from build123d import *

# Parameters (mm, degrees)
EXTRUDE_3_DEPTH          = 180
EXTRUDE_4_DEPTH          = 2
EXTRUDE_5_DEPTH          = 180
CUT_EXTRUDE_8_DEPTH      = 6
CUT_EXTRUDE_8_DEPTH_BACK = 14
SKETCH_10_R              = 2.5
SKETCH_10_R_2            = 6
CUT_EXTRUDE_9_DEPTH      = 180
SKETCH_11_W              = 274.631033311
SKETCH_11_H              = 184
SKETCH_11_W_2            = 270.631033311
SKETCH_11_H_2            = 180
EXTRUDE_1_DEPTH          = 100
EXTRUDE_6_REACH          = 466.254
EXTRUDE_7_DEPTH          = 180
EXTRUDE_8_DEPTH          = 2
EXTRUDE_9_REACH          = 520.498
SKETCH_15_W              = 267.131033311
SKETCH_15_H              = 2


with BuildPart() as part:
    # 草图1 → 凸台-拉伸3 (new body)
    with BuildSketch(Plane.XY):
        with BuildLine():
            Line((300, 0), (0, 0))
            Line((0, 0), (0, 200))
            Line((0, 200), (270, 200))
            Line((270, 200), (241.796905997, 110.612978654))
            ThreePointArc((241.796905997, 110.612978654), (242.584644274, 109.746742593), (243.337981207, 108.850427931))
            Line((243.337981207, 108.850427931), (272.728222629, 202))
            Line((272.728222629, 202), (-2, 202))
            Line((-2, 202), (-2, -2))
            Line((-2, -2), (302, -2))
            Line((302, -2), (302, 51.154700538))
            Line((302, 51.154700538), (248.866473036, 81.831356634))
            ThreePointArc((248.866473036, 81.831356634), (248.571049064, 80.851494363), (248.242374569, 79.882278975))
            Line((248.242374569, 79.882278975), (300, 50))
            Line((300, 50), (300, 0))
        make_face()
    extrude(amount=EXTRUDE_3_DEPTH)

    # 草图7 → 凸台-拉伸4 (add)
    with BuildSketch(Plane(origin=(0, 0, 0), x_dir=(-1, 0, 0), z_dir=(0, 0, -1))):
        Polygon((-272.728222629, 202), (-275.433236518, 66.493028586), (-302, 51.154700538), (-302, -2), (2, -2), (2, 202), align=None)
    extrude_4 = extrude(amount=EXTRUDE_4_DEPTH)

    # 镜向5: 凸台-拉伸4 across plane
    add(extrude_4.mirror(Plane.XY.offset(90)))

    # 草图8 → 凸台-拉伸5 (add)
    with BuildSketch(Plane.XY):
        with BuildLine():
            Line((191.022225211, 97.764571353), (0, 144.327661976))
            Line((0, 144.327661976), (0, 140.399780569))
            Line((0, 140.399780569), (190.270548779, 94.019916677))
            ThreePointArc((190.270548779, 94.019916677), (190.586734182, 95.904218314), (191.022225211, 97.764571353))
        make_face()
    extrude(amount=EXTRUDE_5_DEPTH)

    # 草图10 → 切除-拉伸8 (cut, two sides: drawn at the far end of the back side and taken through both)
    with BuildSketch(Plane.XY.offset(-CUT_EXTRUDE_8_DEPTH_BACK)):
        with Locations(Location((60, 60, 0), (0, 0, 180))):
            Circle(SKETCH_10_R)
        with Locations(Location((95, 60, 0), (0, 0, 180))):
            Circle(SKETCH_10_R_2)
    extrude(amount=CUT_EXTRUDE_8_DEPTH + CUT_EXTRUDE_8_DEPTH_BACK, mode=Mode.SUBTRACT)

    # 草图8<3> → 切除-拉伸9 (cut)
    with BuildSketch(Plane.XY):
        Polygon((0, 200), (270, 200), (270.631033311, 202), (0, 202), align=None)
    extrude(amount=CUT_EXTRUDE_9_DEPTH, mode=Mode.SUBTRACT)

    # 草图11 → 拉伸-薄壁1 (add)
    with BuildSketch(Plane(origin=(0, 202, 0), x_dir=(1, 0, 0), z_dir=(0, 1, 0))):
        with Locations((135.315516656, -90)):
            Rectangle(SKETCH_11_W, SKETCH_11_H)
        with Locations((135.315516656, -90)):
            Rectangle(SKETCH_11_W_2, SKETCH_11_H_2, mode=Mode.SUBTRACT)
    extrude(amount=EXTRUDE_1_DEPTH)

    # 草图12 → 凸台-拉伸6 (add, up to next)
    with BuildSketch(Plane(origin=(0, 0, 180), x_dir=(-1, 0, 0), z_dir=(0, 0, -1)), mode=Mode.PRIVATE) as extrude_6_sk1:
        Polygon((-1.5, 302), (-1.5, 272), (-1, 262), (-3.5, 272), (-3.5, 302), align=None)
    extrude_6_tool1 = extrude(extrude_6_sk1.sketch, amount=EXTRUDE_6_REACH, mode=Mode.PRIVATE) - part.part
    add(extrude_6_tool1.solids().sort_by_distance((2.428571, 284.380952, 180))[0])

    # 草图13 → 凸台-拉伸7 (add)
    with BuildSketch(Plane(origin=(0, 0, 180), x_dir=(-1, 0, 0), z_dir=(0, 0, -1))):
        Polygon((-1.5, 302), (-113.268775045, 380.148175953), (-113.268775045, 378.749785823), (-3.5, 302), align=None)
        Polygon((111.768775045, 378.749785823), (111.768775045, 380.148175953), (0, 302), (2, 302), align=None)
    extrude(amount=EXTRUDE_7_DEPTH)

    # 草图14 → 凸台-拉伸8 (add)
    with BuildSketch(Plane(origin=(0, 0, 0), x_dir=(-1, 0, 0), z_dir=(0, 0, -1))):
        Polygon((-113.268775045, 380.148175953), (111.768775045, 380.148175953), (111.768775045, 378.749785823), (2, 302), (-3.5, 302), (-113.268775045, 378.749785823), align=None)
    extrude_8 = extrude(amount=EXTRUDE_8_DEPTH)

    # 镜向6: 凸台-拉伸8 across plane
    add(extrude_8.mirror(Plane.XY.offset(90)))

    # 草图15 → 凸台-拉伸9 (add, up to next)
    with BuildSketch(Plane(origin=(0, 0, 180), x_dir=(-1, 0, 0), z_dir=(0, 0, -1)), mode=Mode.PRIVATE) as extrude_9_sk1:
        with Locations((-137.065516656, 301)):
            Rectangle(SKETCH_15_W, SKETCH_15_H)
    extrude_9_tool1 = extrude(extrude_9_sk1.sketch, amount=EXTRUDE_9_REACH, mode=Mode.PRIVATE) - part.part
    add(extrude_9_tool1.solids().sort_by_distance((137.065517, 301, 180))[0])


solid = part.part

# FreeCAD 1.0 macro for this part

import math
import FreeCAD as App
import Part
import Sketcher
from FreeCAD import Vector
Q = App.Units.Quantity


def add_polygon(sketch, points):
    """Adds a closed chain of lines whose ends are joined by coincident constraints."""
    first, n = sketch.GeometryCount, len(points)
    for a, b in zip(points, points[1:] + points[:1]):
        sketch.addGeometry(Part.LineSegment(App.Vector(*a, 0), App.Vector(*b, 0)), False)
    for i in range(n):
        sketch.addConstraint(Sketcher.Constraint("Coincident", first + i, 2, first + (i + 1) % n, 1))

doc = App.newDocument("Part")
body = doc.addObject("PartDesign::Body", "Body")

# Sketch on XY plane
sketch1 = body.newObject("Sketcher::SketchObject", "Sketch")
sketch1.AttachmentSupport = (doc.getObject("XY_Plane"), [""])
sketch1.MapMode = "FlatFace"
sketch1.addGeometry(Part.LineSegment(Vector(300, 0, 0), Vector(0, 0, 0)), False)
sketch1.addGeometry(Part.LineSegment(Vector(0, 0, 0), Vector(0, 200, 0)), False)
sketch1.addGeometry(Part.LineSegment(Vector(0, 200, 0), Vector(270, 200, 0)), False)
sketch1.addGeometry(Part.LineSegment(Vector(270, 200, 0), Vector(241.8, 110.6, 0)), False)
sketch1.addGeometry(Part.ArcOfCircle(Part.Circle(Vector(220, 90, 0), Vector(0, 0, 1), 30), math.radians(38.93), math.radians(43.4)), False)
sketch1.addGeometry(Part.LineSegment(Vector(243.3, 108.9, 0), Vector(272.7, 202, 0)), False)
sketch1.addGeometry(Part.LineSegment(Vector(272.7, 202, 0), Vector(-2, 202, 0)), False)
sketch1.addGeometry(Part.LineSegment(Vector(-2, 202, 0), Vector(-2, -2, 0)), False)
sketch1.addGeometry(Part.LineSegment(Vector(-2, -2, 0), Vector(302, -2, 0)), False)
sketch1.addGeometry(Part.LineSegment(Vector(302, -2, 0), Vector(302, 51.2, 0)), False)
sketch1.addGeometry(Part.LineSegment(Vector(302, 51.2, 0), Vector(248.9, 81.8, 0)), False)
sketch1.addGeometry(Part.ArcOfCircle(Part.Circle(Vector(220, 90, 0), Vector(0, 0, 1), 30), math.radians(-19.71), math.radians(-15.8)), False)
sketch1.addGeometry(Part.LineSegment(Vector(248.2, 79.9, 0), Vector(300, 50, 0)), False)
sketch1.addGeometry(Part.LineSegment(Vector(300, 50, 0), Vector(300, 0, 0)), False)
sketch1.addConstraint(Sketcher.Constraint("Coincident", 0, 2, 1, 1))
sketch1.addConstraint(Sketcher.Constraint("Coincident", 1, 2, 2, 1))
sketch1.addConstraint(Sketcher.Constraint("Coincident", 2, 2, 3, 1))
sketch1.addConstraint(Sketcher.Constraint("Coincident", 3, 2, 4, 2))
sketch1.addConstraint(Sketcher.Constraint("Coincident", 4, 1, 5, 1))
sketch1.addConstraint(Sketcher.Constraint("Coincident", 5, 2, 6, 1))
sketch1.addConstraint(Sketcher.Constraint("Coincident", 6, 2, 7, 1))
sketch1.addConstraint(Sketcher.Constraint("Coincident", 7, 2, 8, 1))
sketch1.addConstraint(Sketcher.Constraint("Coincident", 8, 2, 9, 1))
sketch1.addConstraint(Sketcher.Constraint("Coincident", 9, 2, 10, 1))
sketch1.addConstraint(Sketcher.Constraint("Coincident", 10, 2, 11, 2))
sketch1.addConstraint(Sketcher.Constraint("Coincident", 11, 1, 12, 1))
sketch1.addConstraint(Sketcher.Constraint("Coincident", 12, 2, 13, 1))
sketch1.addConstraint(Sketcher.Constraint("Coincident", 13, 2, 0, 1))
sketch1.addConstraint(Sketcher.Constraint("Horizontal", 0))
sketch1.addConstraint(Sketcher.Constraint("Vertical", 1))
sketch1.addConstraint(Sketcher.Constraint("Horizontal", 2))
sketch1.addConstraint(Sketcher.Constraint("Horizontal", 6))
sketch1.addConstraint(Sketcher.Constraint("Vertical", 7))
sketch1.addConstraint(Sketcher.Constraint("Horizontal", 8))
sketch1.addConstraint(Sketcher.Constraint("Vertical", 9))
sketch1.addConstraint(Sketcher.Constraint("Vertical", 13))
sketch1.addConstraint(Sketcher.Constraint("Coincident", 0, 2, -1, 1))
sketch1.addConstraint(Sketcher.Constraint("Coincident", 11, 3, 4, 3))
sketch1.addConstraint(Sketcher.Constraint("Equal", 4, 11))
sketch1.addConstraint(Sketcher.Constraint("Parallel", 3, 5))
sketch1.addConstraint(Sketcher.Constraint("Parallel", 10, 12))
sketch1.addConstraint(Sketcher.Constraint("Radius", 4, Q("30 mm")))
sketch1.addConstraint(Sketcher.Constraint("DistanceX", 0, 2, 0, 1, Q("300 mm")))
sketch1.addConstraint(Sketcher.Constraint("DistanceX", 2, 1, 2, 2, Q("270 mm")))
sketch1.addConstraint(Sketcher.Constraint("DistanceX", 8, 1, 8, 2, Q("304 mm")))
sketch1.addConstraint(Sketcher.Constraint("DistanceY", 1, 1, 1, 2, Q("200 mm")))
sketch1.addConstraint(Sketcher.Constraint("DistanceY", 7, 2, 7, 1, Q("204 mm")))
sketch1.addConstraint(Sketcher.Constraint("DistanceY", 13, 2, 13, 1, Q("50 mm")))
sketch1.addConstraint(Sketcher.Constraint("Angle", 10, Q("150 deg")))
sketch1.addConstraint(Sketcher.Constraint("DistanceX", -1, 1, 4, 3, Q("220 mm")))
sketch1.addConstraint(Sketcher.Constraint("DistanceY", -1, 1, 4, 3, Q("90 mm")))
sketch1.addConstraint(Sketcher.Constraint("DistanceY", -1, 1, 5, 2, Q("202 mm")))
sketch1.addConstraint(Sketcher.Constraint("DistanceX", 6, 2, -1, 1, Q("2 mm")))
sketch1.addConstraint(Sketcher.Constraint("DistanceY", 9, 1, 9, 2, Q("53.154701 mm")))
sketch1.addConstraint(Sketcher.Constraint("DistanceY", 11, 1, 3, 2, Q("30.7307 mm")))
sketch1.addConstraint(Sketcher.Constraint("DistanceX", 6, 2, 6, 1, Q("274.728223 mm")))
pad1 = body.newObject("PartDesign::Pad", "Pad")
pad1.Profile = sketch1
pad1.Length = 180

# Sketch on XY plane
sketch2 = body.newObject("Sketcher::SketchObject", "Sketch001")
sketch2.AttachmentSupport = (doc.getObject("XY_Plane"), [""])
sketch2.MapMode = "FlatFace"
add_polygon(sketch2, [(273, 202), (275, 66), (302, 51), (302, -2), (-2, -2), (-2, 202)])  # lines 0-5
sketch2.addConstraint(Sketcher.Constraint("Vertical", 2))
sketch2.addConstraint(Sketcher.Constraint("Horizontal", 3))
sketch2.addConstraint(Sketcher.Constraint("Vertical", 4))
sketch2.addConstraint(Sketcher.Constraint("Horizontal", 5))
sketch2.addConstraint(Sketcher.Constraint("DistanceX", 3, 2, 3, 1, Q("304 mm")))
sketch2.addConstraint(Sketcher.Constraint("DistanceY", 4, 1, 4, 2, Q("204 mm")))
sketch2.addConstraint(Sketcher.Constraint("Angle", 1, Q("-30 deg")))
sketch2.addConstraint(Sketcher.Constraint("DistanceX", -1, 1, 1, 2, Q("302 mm")))
sketch2.addConstraint(Sketcher.Constraint("DistanceY", 2, 2, -1, 1, Q("2 mm")))
sketch2.addConstraint(Sketcher.Constraint("DistanceY", 2, 2, 2, 1, Q("53.154701 mm")))
sketch2.addConstraint(Sketcher.Constraint("DistanceX", 5, 1, 5, 2, Q("274.728223 mm")))
sketch2.addConstraint(Sketcher.Constraint("DistanceY", -1, 1, 0, 2, Q("66.493029 mm")))
pad2 = body.newObject("PartDesign::Pad", "Pad001")
pad2.Profile = sketch2
pad2.Length = 2
pad2.Reversed = True
doc.recompute()

datumplane = body.newObject("PartDesign::Plane", "DatumPlane")
datumplane.AttachmentSupport = (doc.getObject("XY_Plane"), [""])
datumplane.MapMode = "FlatFace"
datumplane.AttachmentOffset = App.Placement(Vector(0, 0, 90), App.Rotation())
mirrored = body.newObject("PartDesign::Mirrored", "Mirrored")
mirrored.Originals = [pad2]
mirrored.MirrorPlane = (datumplane, [""])
body.Tip = mirrored

# Sketch on XY plane
sketch3 = body.newObject("Sketcher::SketchObject", "Sketch002")
sketch3.AttachmentSupport = (doc.getObject("XY_Plane"), [""])
sketch3.MapMode = "FlatFace"
sketch3.addGeometry(Part.LineSegment(Vector(191, 97.8, 0), Vector(0, 144.3, 0)), False)
sketch3.addGeometry(Part.LineSegment(Vector(0, 144.3, 0), Vector(0, 140.4, 0)), False)
sketch3.addGeometry(Part.LineSegment(Vector(0, 140.4, 0), Vector(190.3, 94, 0)), False)
sketch3.addGeometry(Part.ArcOfCircle(Part.Circle(Vector(220, 90, 0), Vector(0, 0, 1), 30), math.radians(165), math.radians(172.3)), False)
sketch3.addConstraint(Sketcher.Constraint("Coincident", 0, 2, 1, 1))
sketch3.addConstraint(Sketcher.Constraint("Coincident", 1, 2, 2, 1))
sketch3.addConstraint(Sketcher.Constraint("Coincident", 2, 2, 3, 2))
sketch3.addConstraint(Sketcher.Constraint("Coincident", 3, 1, 0, 1))
sketch3.addConstraint(Sketcher.Constraint("Vertical", 1))
sketch3.addConstraint(Sketcher.Constraint("PointOnObject", 0, 2, -2))
sketch3.addConstraint(Sketcher.Constraint("Parallel", 0, 2))
sketch3.addConstraint(Sketcher.Constraint("Radius", 3, Q("30 mm")))
sketch3.addConstraint(Sketcher.Constraint("DistanceX", -1, 1, 3, 3, Q("220 mm")))
sketch3.addConstraint(Sketcher.Constraint("DistanceY", -1, 1, 3, 3, Q("90 mm")))
sketch3.addConstraint(Sketcher.Constraint("DistanceY", 1, 2, 1, 1, Q("3.927881 mm")))
sketch3.addConstraint(Sketcher.Constraint("Distance", 0, Q("196.615391 mm")))
sketch3.addConstraint(Sketcher.Constraint("DistanceY", -1, 1, 0, 2, Q("144.327662 mm")))
pad3 = body.newObject("PartDesign::Pad", "Pad002")
pad3.Profile = sketch3
pad3.Length = 180

# Sketch on XY plane
sketch4 = body.newObject("Sketcher::SketchObject", "Sketch003")
sketch4.AttachmentSupport = (doc.getObject("XY_Plane"), [""])
sketch4.MapMode = "FlatFace"
sketch4.addGeometry(Part.Circle(Vector(60, 60, 0), Vector(0, 0, 1), 2.5), False)
sketch4.addGeometry(Part.Circle(Vector(95, 60, 0), Vector(0, 0, 1), 6), False)
sketch4.addConstraint(Sketcher.Constraint("Horizontal", 0, 3, 1, 3))
sketch4.addConstraint(Sketcher.Constraint("Diameter", 0, Q("5 mm")))
sketch4.addConstraint(Sketcher.Constraint("Diameter", 1, Q("12 mm")))
sketch4.addConstraint(Sketcher.Constraint("DistanceX", -1, 1, 0, 3, Q("60 mm")))
sketch4.addConstraint(Sketcher.Constraint("DistanceY", -1, 1, 0, 3, Q("60 mm")))
sketch4.addConstraint(Sketcher.Constraint("DistanceX", -1, 1, 1, 3, Q("95 mm")))
pocket1 = body.newObject("PartDesign::Pocket", "Pocket")
pocket1.Profile = sketch4
pocket1.Type = "TwoLengths"
pocket1.Length = 6
pocket1.Length2 = 14
pocket1.Reversed = True

# Sketch on XY plane
sketch5 = body.newObject("Sketcher::SketchObject", "Sketch004")
sketch5.AttachmentSupport = (doc.getObject("XY_Plane"), [""])
sketch5.MapMode = "FlatFace"
add_polygon(sketch5, [(0, 200), (270, 200), (270.6, 202), (0, 202)])  # lines 0-3
sketch5.addConstraint(Sketcher.Constraint("Horizontal", 0))
sketch5.addConstraint(Sketcher.Constraint("Horizontal", 2))
sketch5.addConstraint(Sketcher.Constraint("Vertical", 3))
sketch5.addConstraint(Sketcher.Constraint("PointOnObject", 2, 2, -2))
sketch5.addConstraint(Sketcher.Constraint("DistanceX", 0, 1, 0, 2, Q("270 mm")))
sketch5.addConstraint(Sketcher.Constraint("DistanceY", 3, 2, 3, 1, Q("2 mm")))
sketch5.addConstraint(Sketcher.Constraint("DistanceY", -1, 1, 0, 2, Q("200 mm")))
sketch5.addConstraint(Sketcher.Constraint("Distance", 1, Q("2.097189 mm")))
pocket2 = body.newObject("PartDesign::Pocket", "Pocket001")
pocket2.Profile = sketch5
pocket2.Length = 180
pocket2.Reversed = True

# Sketch on XZ plane
sketch6 = body.newObject("Sketcher::SketchObject", "Sketch005")
sketch6.AttachmentSupport = (doc.getObject("XZ_Plane"), [""])
sketch6.MapMode = "FlatFace"
sketch6.AttachmentOffset = App.Placement(Vector(0, 0, -202), App.Rotation())
add_polygon(sketch6, [(-2, -2), (-2, 182), (273, 182), (273, -2)])  # lines 0-3
add_polygon(sketch6, [(271, 180), (0, 180), (0, 0), (271, 0)])  # lines 4-7
sketch6.addConstraint(Sketcher.Constraint("Vertical", 0))
sketch6.addConstraint(Sketcher.Constraint("Horizontal", 1))
sketch6.addConstraint(Sketcher.Constraint("Vertical", 2))
sketch6.addConstraint(Sketcher.Constraint("Horizontal", 3))
sketch6.addConstraint(Sketcher.Constraint("Horizontal", 4))
sketch6.addConstraint(Sketcher.Constraint("Vertical", 5))
sketch6.addConstraint(Sketcher.Constraint("Horizontal", 6))
sketch6.addConstraint(Sketcher.Constraint("Vertical", 7))
sketch6.addConstraint(Sketcher.Constraint("Coincident", 5, 2, -1, 1))
sketch6.addConstraint(Sketcher.Constraint("DistanceY", 0, 1, 0, 2, Q("184 mm")))
sketch6.addConstraint(Sketcher.Constraint("DistanceY", 5, 2, 5, 1, Q("180 mm")))
sketch6.addConstraint(Sketcher.Constraint("DistanceX", 0, 2, -1, 1, Q("2 mm")))
sketch6.addConstraint(Sketcher.Constraint("DistanceY", -1, 1, 0, 2, Q("182 mm")))
sketch6.addConstraint(Sketcher.Constraint("DistanceX", 6, 2, 2, 2, Q("2 mm")))
sketch6.addConstraint(Sketcher.Constraint("DistanceX", 1, 1, 1, 2, Q("274.631033 mm")))
pad4 = body.newObject("PartDesign::Pad", "Pad003")
pad4.Profile = sketch6
pad4.Length = 100
pad4.Reversed = True

# Sketch on XY plane
sketch7 = body.newObject("Sketcher::SketchObject", "Sketch006")
sketch7.AttachmentSupport = (doc.getObject("XY_Plane"), [""])
sketch7.MapMode = "FlatFace"
sketch7.AttachmentOffset = App.Placement(Vector(0, 0, 180), App.Rotation())
add_polygon(sketch7, [(1.5, 272), (1.5, 302), (3.5, 302), (3.5, 272), (1, 262)])  # lines 0-4
sketch7.addConstraint(Sketcher.Constraint("Vertical", 0))
sketch7.addConstraint(Sketcher.Constraint("Horizontal", 1))
sketch7.addConstraint(Sketcher.Constraint("Vertical", 2))
sketch7.addConstraint(Sketcher.Constraint("Horizontal", 2, 2, 4, 2))
sketch7.addConstraint(Sketcher.Constraint("DistanceX", 1, 1, 1, 2, Q("2 mm")))
sketch7.addConstraint(Sketcher.Constraint("DistanceY", 0, 1, 0, 2, Q("30 mm")))
sketch7.addConstraint(Sketcher.Constraint("DistanceY", -1, 1, 0, 2, Q("302 mm")))
sketch7.addConstraint(Sketcher.Constraint("DistanceX", -1, 1, 3, 2, Q("1 mm")))
sketch7.addConstraint(Sketcher.Constraint("DistanceY", -1, 1, 3, 2, Q("262 mm")))
sketch7.addConstraint(Sketcher.Constraint("DistanceX", -1, 1, 0, 2, Q("1.5 mm")))
pad5 = body.newObject("PartDesign::Pad", "Pad004")
pad5.Profile = sketch7
pad5.Type = "UpToFirst"
pad5.Reversed = True

# Sketch on XY plane
sketch8 = body.newObject("Sketcher::SketchObject", "Sketch007")
sketch8.AttachmentSupport = (doc.getObject("XY_Plane"), [""])
sketch8.MapMode = "FlatFace"
sketch8.AttachmentOffset = App.Placement(Vector(0, 0, 180), App.Rotation())
add_polygon(sketch8, [(1.5, 302), (113.3, 380.1), (113.3, 378.7), (3.5, 302)])  # lines 0-3
add_polygon(sketch8, [(-111.8, 378.7), (-111.8, 380.1), (0, 302), (-2, 302)])  # lines 4-7
sketch8.addConstraint(Sketcher.Constraint("Vertical", 1))
sketch8.addConstraint(Sketcher.Constraint("Horizontal", 3))
sketch8.addConstraint(Sketcher.Constraint("Vertical", 4))
sketch8.addConstraint(Sketcher.Constraint("Horizontal", 6))
sketch8.addConstraint(Sketcher.Constraint("PointOnObject", 5, 2, -2))
sketch8.addConstraint(Sketcher.Constraint("Parallel", 0, 2))
sketch8.addConstraint(Sketcher.Constraint("Parallel", 5, 7))
sketch8.addConstraint(Sketcher.Constraint("Horizontal", 0, 2, 4, 2))
sketch8.addConstraint(Sketcher.Constraint("Horizontal", 3, 2, 5, 2))
sketch8.addConstraint(Sketcher.Constraint("Horizontal", 1, 2, 7, 2))
sketch8.addConstraint(Sketcher.Constraint("Equal", 3, 6))
sketch8.addConstraint(Sketcher.Constraint("DistanceX", 3, 2, 3, 1, Q("2 mm")))
sketch8.addConstraint(Sketcher.Constraint("DistanceY", -1, 1, 2, 2, Q("302 mm")))
sketch8.addConstraint(Sketcher.Constraint("DistanceX", -1, 1, 2, 2, Q("3.5 mm")))
sketch8.addConstraint(Sketcher.Constraint("DistanceY", 1, 2, 1, 1, Q("1.39839 mm")))
sketch8.addConstraint(Sketcher.Constraint("DistanceX", 4, 2, 0, 2, Q("225.03755 mm")))
pad6 = body.newObject("PartDesign::Pad", "Pad005")
pad6.Profile = sketch8
pad6.Length = 180
pad6.Reversed = True

# Sketch on XY plane
sketch9 = body.newObject("Sketcher::SketchObject", "Sketch008")
sketch9.AttachmentSupport = (doc.getObject("XY_Plane"), [""])
sketch9.MapMode = "FlatFace"
add_polygon(sketch9, [(-111.8, 380.1), (113.3, 380.1), (113.3, 378.7), (3.5, 302), (-2, 302), (-111.8, 378.7)])  # lines 0-5
sketch9.addConstraint(Sketcher.Constraint("Horizontal", 0))
sketch9.addConstraint(Sketcher.Constraint("Vertical", 1))
sketch9.addConstraint(Sketcher.Constraint("Horizontal", 3))
sketch9.addConstraint(Sketcher.Constraint("Vertical", 5))
sketch9.addConstraint(Sketcher.Constraint("Horizontal", 1, 2, 4, 2))
sketch9.addConstraint(Sketcher.Constraint("Equal", 2, 4))
sketch9.addConstraint(Sketcher.Constraint("DistanceX", 3, 2, 3, 1, Q("5.5 mm")))
sketch9.addConstraint(Sketcher.Constraint("DistanceY", -1, 1, 2, 2, Q("302 mm")))
sketch9.addConstraint(Sketcher.Constraint("DistanceX", 3, 2, -1, 1, Q("2 mm")))
sketch9.addConstraint(Sketcher.Constraint("DistanceX", 0, 1, 0, 2, Q("225.03755 mm")))
sketch9.addConstraint(Sketcher.Constraint("DistanceY", 1, 2, 1, 1, Q("1.39839 mm")))
sketch9.addConstraint(Sketcher.Constraint("Distance", 2, Q("133.939216 mm")))
pad7 = body.newObject("PartDesign::Pad", "Pad006")
pad7.Profile = sketch9
pad7.Length = 2
pad7.Reversed = True
doc.recompute()

datumplane2 = body.newObject("PartDesign::Plane", "DatumPlane001")
datumplane2.AttachmentSupport = (doc.getObject("XY_Plane"), [""])
datumplane2.MapMode = "FlatFace"
datumplane2.AttachmentOffset = App.Placement(Vector(0, 0, 90), App.Rotation())
mirrored2 = body.newObject("PartDesign::Mirrored", "Mirrored001")
mirrored2.Originals = [pad7]
mirrored2.MirrorPlane = (datumplane2, [""])
body.Tip = mirrored2

# Sketch on XY plane
sketch10 = body.newObject("Sketcher::SketchObject", "Sketch009")
sketch10.AttachmentSupport = (doc.getObject("XY_Plane"), [""])
sketch10.MapMode = "FlatFace"
sketch10.AttachmentOffset = App.Placement(Vector(0, 0, 180), App.Rotation())
add_polygon(sketch10, [(270.6, 302), (270.6, 300), (3.5, 300), (3.5, 302)])  # lines 0-3
sketch10.addConstraint(Sketcher.Constraint("Vertical", 0))
sketch10.addConstraint(Sketcher.Constraint("Horizontal", 1))
sketch10.addConstraint(Sketcher.Constraint("Vertical", 2))
sketch10.addConstraint(Sketcher.Constraint("Horizontal", 3))
sketch10.addConstraint(Sketcher.Constraint("DistanceY", 0, 2, 0, 1, Q("2 mm")))
sketch10.addConstraint(Sketcher.Constraint("DistanceY", -1, 1, 0, 2, Q("300 mm")))
sketch10.addConstraint(Sketcher.Constraint("DistanceX", -1, 1, 1, 2, Q("3.5 mm")))
sketch10.addConstraint(Sketcher.Constraint("DistanceX", 1, 2, 1, 1, Q("267.131033 mm")))
pad8 = body.newObject("PartDesign::Pad", "Pad007")
pad8.Profile = sketch10
pad8.Type = "UpToFirst"
pad8.Reversed = True

doc.recompute()
